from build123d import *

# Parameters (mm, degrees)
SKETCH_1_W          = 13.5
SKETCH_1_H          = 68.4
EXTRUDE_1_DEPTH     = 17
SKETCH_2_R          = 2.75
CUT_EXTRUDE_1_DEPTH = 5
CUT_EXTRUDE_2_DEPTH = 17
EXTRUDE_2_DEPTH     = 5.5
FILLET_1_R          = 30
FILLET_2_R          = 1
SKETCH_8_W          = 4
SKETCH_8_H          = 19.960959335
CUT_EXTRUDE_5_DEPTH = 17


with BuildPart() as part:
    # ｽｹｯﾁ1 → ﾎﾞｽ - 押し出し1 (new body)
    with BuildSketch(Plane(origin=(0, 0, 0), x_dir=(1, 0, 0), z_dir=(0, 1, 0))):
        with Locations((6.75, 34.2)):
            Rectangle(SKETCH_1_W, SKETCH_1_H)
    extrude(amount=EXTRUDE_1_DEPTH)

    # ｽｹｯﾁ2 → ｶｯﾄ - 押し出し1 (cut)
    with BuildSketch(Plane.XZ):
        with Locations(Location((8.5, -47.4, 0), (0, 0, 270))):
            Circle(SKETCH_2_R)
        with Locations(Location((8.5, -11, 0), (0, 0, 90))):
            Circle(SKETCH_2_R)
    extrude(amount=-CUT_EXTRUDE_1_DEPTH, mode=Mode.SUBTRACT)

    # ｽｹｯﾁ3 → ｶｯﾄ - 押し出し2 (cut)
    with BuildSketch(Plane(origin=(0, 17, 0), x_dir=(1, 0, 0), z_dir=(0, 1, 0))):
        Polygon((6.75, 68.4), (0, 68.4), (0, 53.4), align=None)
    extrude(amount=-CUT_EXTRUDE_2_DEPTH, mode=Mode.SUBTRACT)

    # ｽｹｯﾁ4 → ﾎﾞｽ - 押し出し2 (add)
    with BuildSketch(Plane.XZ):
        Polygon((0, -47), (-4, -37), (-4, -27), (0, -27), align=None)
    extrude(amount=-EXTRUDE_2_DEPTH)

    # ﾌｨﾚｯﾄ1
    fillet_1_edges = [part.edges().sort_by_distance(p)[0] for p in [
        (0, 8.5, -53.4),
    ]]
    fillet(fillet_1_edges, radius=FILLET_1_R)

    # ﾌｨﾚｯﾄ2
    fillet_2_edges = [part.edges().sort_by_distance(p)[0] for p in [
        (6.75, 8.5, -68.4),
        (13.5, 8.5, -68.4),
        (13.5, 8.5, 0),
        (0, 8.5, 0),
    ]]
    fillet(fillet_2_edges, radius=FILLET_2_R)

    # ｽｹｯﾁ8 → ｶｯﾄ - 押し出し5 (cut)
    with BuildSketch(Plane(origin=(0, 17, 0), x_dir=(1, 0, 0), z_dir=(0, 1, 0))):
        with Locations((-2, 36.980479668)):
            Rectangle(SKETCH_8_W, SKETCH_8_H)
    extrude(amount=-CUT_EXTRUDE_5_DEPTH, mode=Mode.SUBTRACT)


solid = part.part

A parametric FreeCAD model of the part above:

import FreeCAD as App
import Part
import Sketcher
from FreeCAD import Vector
Q = App.Units.Quantity


def edges_at(feature, points):
    """Names of the edges that pass closest to the given points."""
    edges = feature.Shape.Edges
    near = lambda p: min(range(len(edges)), key=lambda i: edges[i].distToShape(Part.Vertex(*p))[0])
    return sorted({f"Edge{near(p) + 1}" for p in points})


def add_polygon(sketch, points):
    """Adds a closed chain of lines whose ends are joined by coincident constraints."""
    first, n = sketch.GeometryCount, len(points)
    for a, b in zip(points, points[1:] + points[:1]):
        sketch.addGeometry(Part.LineSegment(App.Vector(*a, 0), App.Vector(*b, 0)), False)
    for i in range(n):
        sketch.addConstraint(Sketcher.Constraint("Coincident", first + i, 2, first + (i + 1) % n, 1))

doc = App.newDocument("Part")
params = doc.addObject("Spreadsheet::Sheet", "Params")
for row, (alias, value) in enumerate([
    ("sketch1_width", "13.5 mm"),
    ("sketch1_height", "68.4 mm"),
    ("pad1_length", "17 mm"),
    ("sketch2_diameter", "5.5 mm"),
    ("pocket1_length", "5 mm"),
    ("sketch3_height", "15 mm"),
    ("sketch3_width", "6.75 mm"),
    ("pocket2_length", "17 mm"),
    ("sketch4_width", "4 mm"),
    ("sketch4_height", "20 mm"),
    ("sketch4_height2", "10 mm"),
    ("pad2_length", "5.5 mm"),
    ("fillet_radius", "30 mm"),
    ("fillet2_radius", "1 mm"),
    ("sketch5_width", "4 mm"),
    ("pocket3_length", "17 mm"),
], start=1):
    params.set(f"A{row}", alias)
    params.set(f"B{row}", "=" + value)
    params.setAlias(f"B{row}", alias)

body = doc.addObject("PartDesign::Body", "Body")

# Sketch on XZ plane
sketch1 = doc.addObject("Sketcher::SketchObject", "Sketch")
body.addObject(sketch1)
sketch1.AttachmentSupport = (doc.XZ_Plane, [""])
sketch1.MapMode = "FlatFace"
add_polygon(sketch1, [(0, -68), (0, 0), (14, 0), (14, -68)])  # lines 0-3
sketch1.addConstraint([
    Sketcher.Constraint("Vertical", 0),
    Sketcher.Constraint("Horizontal", 1),
    Sketcher.Constraint("Vertical", 2),
    Sketcher.Constraint("Horizontal", 3),
    Sketcher.Constraint("Coincident", 0, 2, -1, 1),
    Sketcher.Constraint("DistanceX", 1, 1, 1, 2, Q("13.5 mm")),
    Sketcher.Constraint("DistanceY", 0, 1, 0, 2, Q("68.4 mm")),
])
sketch1.setExpression("Constraints[9]", "Params.sketch1_width")
sketch1.setExpression("Constraints[10]", "Params.sketch1_height")
pad1 = doc.addObject("PartDesign::Pad", "Pad")
body.addObject(pad1)
pad1.Profile = sketch1
pad1.setExpression("Length", "Params.pad1_length")
pad1.Reversed = True

# Sketch on XZ plane
sketch2 = doc.addObject("Sketcher::SketchObject", "Sketch001")
body.addObject(sketch2)
sketch2.AttachmentSupport = (doc.XZ_Plane, [""])
sketch2.MapMode = "FlatFace"
sketch2.addGeometry([
    Part.Circle(Vector(8.5, -47.4, 0), Vector(0, 0, 1), 2.8),
    Part.Circle(Vector(8.5, -11, 0), Vector(0, 0, 1), 2.8),
], False)
sketch2.addConstraint([
    Sketcher.Constraint("Equal", 0, 1),
    Sketcher.Constraint("Vertical", 0, 3, 1, 3),
    Sketcher.Constraint("Diameter", 0, Q("5.5 mm")),
    Sketcher.Constraint("DistanceY", 1, 3, -1, 1, Q("11 mm")),
    Sketcher.Constraint("DistanceX", -1, 1, 0, 3, Q("8.5 mm")),
    Sketcher.Constraint("DistanceY", 0, 3, -1, 1, Q("47.4 mm")),
])
sketch2.setExpression("Constraints[2]", "Params.sketch2_diameter")
pocket1 = doc.addObject("PartDesign::Pocket", "Pocket")
body.addObject(pocket1)
pocket1.Profile = sketch2
pocket1.setExpression("Length", "Params.pocket1_length")

# Sketch on XZ plane
sketch3 = doc.addObject("Sketcher::SketchObject", "Sketch002")
body.addObject(sketch3)
sketch3.AttachmentSupport = (doc.XZ_Plane, [""])
sketch3.MapMode = "FlatFace"
sketch3.AttachmentOffset = App.Placement(Vector(0, 0, -17), App.Rotation())
add_polygon(sketch3, [(7, -68), (0, -68), (0, -53)])  # lines 0-2
sketch3.addConstraint([
    Sketcher.Constraint("Horizontal", 0),
    Sketcher.Constraint("Vertical", 1),
    Sketcher.Constraint("PointOnObject", 0, 2, -2),
    Sketcher.Constraint("DistanceY", 1, 1, 1, 2, Q("15 mm")),
    Sketcher.Constraint("DistanceX", 0, 2, 0, 1, Q("6.75 mm")),
    Sketcher.Constraint("DistanceY", 0, 2, -1, 1, Q("68.4 mm")),
])
sketch3.setExpression("Constraints[6]", "Params.sketch3_height")
sketch3.setExpression("Constraints[7]", "Params.sketch3_width")
pocket2 = doc.addObject("PartDesign::Pocket", "Pocket001")
body.addObject(pocket2)
pocket2.Profile = sketch3
pocket2.setExpression("Length", "Params.pocket2_length")
pocket2.Reversed = True

# Sketch on XZ plane
sketch4 = doc.addObject("Sketcher::SketchObject", "Sketch003")
body.addObject(sketch4)
sketch4.AttachmentSupport = (doc.XZ_Plane, [""])
sketch4.MapMode = "FlatFace"
add_polygon(sketch4, [(-4, -37), (0, -47), (0, -27), (-4, -27)])  # lines 0-3
sketch4.addConstraint([
    Sketcher.Constraint("Vertical", 1),
    Sketcher.Constraint("Horizontal", 2),
    Sketcher.Constraint("Vertical", 3),
    Sketcher.Constraint("PointOnObject", 0, 2, -2),
    Sketcher.Constraint("DistanceX", 2, 2, 2, 1, Q("4 mm")),
    Sketcher.Constraint("DistanceY", 1, 1, 1, 2, Q("20 mm")),
    Sketcher.Constraint("DistanceY", 3, 2, 3, 1, Q("10 mm")),
    Sketcher.Constraint("DistanceY", 0, 2, -1, 1, Q("47 mm")),
])
sketch4.setExpression("Constraints[8]", "Params.sketch4_width")
sketch4.setExpression("Constraints[9]", "Params.sketch4_height")
sketch4.setExpression("Constraints[10]", "Params.sketch4_height2")
pad2 = doc.addObject("PartDesign::Pad", "Pad001")
body.addObject(pad2)
pad2.Profile = sketch4
pad2.setExpression("Length", "Params.pad2_length")
pad2.Reversed = True
doc.recompute()

fillet = doc.addObject("PartDesign::Fillet", "Fillet")
body.addObject(fillet)
fillet.Base = (pad2, edges_at(pad2, [(0, 8.5, -53.4)]))
fillet.setExpression("Radius", "Params.fillet_radius")
doc.recompute()

fillet2 = doc.addObject("PartDesign::Fillet", "Fillet001")
body.addObject(fillet2)
fillet2.Base = (fillet, edges_at(fillet, [
    (6.75, 8.5, -68.4),
    (13.5, 8.5, -68.4),
    (13.5, 8.5, 0),
    (0, 8.5, 0),
]))
fillet2.setExpression("Radius", "Params.fillet2_radius")

# Sketch on XZ plane
sketch5 = doc.addObject("Sketcher::SketchObject", "Sketch004")
body.addObject(sketch5)
sketch5.AttachmentSupport = (doc.XZ_Plane, [""])
sketch5.MapMode = "FlatFace"
sketch5.AttachmentOffset = App.Placement(Vector(0, 0, -17), App.Rotation())
add_polygon(sketch5, [(-4, -47), (-4, -27), (0, -27), (0, -47)])  # lines 0-3
sketch5.addConstraint([
    Sketcher.Constraint("Vertical", 0),
    Sketcher.Constraint("Horizontal", 1),
    Sketcher.Constraint("Vertical", 2),
    Sketcher.Constraint("Horizontal", 3),
    Sketcher.Constraint("PointOnObject", 1, 2, -2),
    Sketcher.Constraint("DistanceX", 1, 1, 1, 2, Q("4 mm")),
    Sketcher.Constraint("DistanceY", 0, 2, -1, 1, Q("27 mm")),
    Sketcher.Constraint("DistanceY", 0, 1, 0, 2, Q("19.960959 mm")),
])
sketch5.setExpression("Constraints[9]", "Params.sketch5_width")
pocket3 = doc.addObject("PartDesign::Pocket", "Pocket002")
body.addObject(pocket3)
pocket3.Profile = sketch5
pocket3.setExpression("Length", "Params.pocket3_length")
pocket3.Reversed = True

doc.recompute()
